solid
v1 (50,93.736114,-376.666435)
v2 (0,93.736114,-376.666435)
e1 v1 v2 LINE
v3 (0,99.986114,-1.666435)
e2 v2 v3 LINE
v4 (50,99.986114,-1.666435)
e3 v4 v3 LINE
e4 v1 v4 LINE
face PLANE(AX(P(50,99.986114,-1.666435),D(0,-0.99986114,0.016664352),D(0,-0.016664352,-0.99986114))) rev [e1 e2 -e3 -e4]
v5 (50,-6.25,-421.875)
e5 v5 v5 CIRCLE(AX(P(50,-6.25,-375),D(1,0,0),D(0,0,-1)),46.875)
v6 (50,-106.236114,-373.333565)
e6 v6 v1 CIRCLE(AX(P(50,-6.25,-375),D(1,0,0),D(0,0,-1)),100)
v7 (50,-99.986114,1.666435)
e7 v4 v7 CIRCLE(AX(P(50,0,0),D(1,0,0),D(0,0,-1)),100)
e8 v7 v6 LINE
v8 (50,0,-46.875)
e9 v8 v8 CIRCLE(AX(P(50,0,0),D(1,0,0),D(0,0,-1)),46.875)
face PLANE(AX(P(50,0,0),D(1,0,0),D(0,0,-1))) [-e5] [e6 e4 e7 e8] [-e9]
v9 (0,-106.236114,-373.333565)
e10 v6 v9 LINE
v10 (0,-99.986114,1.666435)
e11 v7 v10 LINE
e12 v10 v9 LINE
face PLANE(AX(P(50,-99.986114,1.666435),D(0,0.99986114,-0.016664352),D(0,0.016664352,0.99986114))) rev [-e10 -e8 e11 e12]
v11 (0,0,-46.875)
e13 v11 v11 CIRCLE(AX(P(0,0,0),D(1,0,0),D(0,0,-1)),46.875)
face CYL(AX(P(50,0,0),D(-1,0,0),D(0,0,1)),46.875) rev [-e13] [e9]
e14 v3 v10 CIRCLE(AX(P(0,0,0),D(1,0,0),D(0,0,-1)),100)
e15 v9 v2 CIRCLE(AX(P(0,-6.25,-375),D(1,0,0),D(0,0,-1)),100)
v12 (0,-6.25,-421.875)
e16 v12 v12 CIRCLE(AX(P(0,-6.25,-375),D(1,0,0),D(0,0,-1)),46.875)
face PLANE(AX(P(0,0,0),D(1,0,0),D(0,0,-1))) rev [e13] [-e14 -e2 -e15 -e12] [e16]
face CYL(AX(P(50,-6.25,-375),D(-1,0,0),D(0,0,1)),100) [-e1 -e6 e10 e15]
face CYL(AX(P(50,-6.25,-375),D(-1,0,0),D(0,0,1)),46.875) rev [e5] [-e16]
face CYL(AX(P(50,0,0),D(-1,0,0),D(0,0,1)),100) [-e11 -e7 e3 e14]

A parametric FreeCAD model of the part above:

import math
import FreeCAD as App
import Part
import Sketcher

doc = App.newDocument("Part")
body = doc.addObject("PartDesign::Body", "Body")

# Sketch on YZ plane
sketch1 = body.newObject("Sketcher::SketchObject", "Sketch")
sketch1.AttachmentSupport = (doc.getObject("YZ_Plane"), [""])
sketch1.MapMode = "FlatFace"
sketch1.addGeometry([
    Part.LineSegment(App.Vector(94, -377, 0), App.Vector(100, -2, 0)),  # 0
    Part.ArcOfCircle(Part.Circle(App.Vector(0, 0, 0), App.Vector(0, 0, 1), 100), math.radians(-1), math.radians(179)),  # 1
    Part.LineSegment(App.Vector(-100, 2, 0), App.Vector(-106, -373, 0)),  # 2
    Part.ArcOfCircle(Part.Circle(App.Vector(-6, -375, 0), App.Vector(0, 0, 1), 100), math.radians(179), math.radians(359)),  # 3
    Part.Circle(App.Vector(-6, -375, 0), App.Vector(0, 0, 1), 47),  # 4
    Part.Circle(App.Vector(0, 0, 0), App.Vector(0, 0, 1), 47),  # 5
], False)
sketch1.addConstraint([
    Sketcher.Constraint("Tangent", 0, 2, 1, 1),
    Sketcher.Constraint("Tangent", 1, 2, 2, 1),
    Sketcher.Constraint("Tangent", 2, 2, 3, 1),
    Sketcher.Constraint("Tangent", 3, 2, 0, 1),
    Sketcher.Constraint("Coincident", 1, 3, -1, 1),
    Sketcher.Constraint("Coincident", 5, 3, -1, 1),
    Sketcher.Constraint("Coincident", 4, 3, 3, 3),
    Sketcher.Constraint("Equal", 1, 3),
    Sketcher.Constraint("Equal", 4, 5),
    Sketcher.Constraint("Radius", 1, 100.0),
    Sketcher.Constraint("Diameter", 4, 93.75),
    Sketcher.Constraint("DistanceY", 3, 3, -1, 1, 375.0),
    Sketcher.Constraint("DistanceX", 3, 3, -1, 1, 6.25),
])
pad1 = body.newObject("PartDesign::Pad", "Pad")
pad1.Profile = sketch1
pad1.Length = 50

doc.recompute()
